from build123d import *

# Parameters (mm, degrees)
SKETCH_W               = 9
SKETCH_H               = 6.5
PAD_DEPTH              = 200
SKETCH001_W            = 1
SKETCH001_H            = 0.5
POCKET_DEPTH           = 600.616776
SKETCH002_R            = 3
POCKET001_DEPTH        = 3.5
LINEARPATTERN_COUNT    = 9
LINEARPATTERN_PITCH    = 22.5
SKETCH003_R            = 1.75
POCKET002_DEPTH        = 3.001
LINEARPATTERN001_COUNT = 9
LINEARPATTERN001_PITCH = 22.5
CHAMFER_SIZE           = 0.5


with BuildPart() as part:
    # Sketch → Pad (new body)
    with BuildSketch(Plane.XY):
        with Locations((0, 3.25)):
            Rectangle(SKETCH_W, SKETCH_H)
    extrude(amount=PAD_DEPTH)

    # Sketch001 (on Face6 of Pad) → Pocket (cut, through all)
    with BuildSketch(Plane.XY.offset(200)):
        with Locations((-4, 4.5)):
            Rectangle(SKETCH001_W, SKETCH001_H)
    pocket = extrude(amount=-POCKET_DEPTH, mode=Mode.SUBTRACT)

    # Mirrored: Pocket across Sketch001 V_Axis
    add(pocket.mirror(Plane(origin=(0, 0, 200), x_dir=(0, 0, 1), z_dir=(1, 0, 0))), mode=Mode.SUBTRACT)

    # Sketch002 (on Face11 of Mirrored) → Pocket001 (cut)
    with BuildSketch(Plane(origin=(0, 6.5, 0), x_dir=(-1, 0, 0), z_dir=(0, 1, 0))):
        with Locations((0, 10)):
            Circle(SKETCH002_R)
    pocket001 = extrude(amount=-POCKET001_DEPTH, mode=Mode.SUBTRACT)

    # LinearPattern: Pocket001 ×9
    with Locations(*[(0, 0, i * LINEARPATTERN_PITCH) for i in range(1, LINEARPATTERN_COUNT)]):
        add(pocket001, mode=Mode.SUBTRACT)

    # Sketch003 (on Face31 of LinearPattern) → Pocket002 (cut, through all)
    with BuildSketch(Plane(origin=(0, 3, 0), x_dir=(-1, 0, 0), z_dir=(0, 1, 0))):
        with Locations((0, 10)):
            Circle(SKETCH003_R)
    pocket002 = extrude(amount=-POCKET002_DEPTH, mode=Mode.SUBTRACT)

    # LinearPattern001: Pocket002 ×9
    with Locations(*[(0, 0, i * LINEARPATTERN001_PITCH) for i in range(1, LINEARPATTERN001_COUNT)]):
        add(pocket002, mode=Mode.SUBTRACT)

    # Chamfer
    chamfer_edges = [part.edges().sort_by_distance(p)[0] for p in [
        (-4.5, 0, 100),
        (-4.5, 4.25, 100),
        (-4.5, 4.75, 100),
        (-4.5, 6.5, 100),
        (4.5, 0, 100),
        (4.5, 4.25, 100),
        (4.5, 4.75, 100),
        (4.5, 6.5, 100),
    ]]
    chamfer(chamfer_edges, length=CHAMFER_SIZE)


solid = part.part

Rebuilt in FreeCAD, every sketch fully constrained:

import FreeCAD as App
import Part
import Sketcher

V = App.Vector
Q = App.Units.Quantity


def edges_at(feature, points):
    """Names of the edges that pass closest to the given points."""
    edges = feature.Shape.Edges
    near = lambda p: min(range(len(edges)), key=lambda i: edges[i].distToShape(Part.Vertex(*p))[0])
    return sorted({f"Edge{near(p) + 1}" for p in points})


def add_polygon(sketch, points):
    """Adds a closed chain of lines whose ends are joined by coincident constraints."""
    first, n = sketch.GeometryCount, len(points)
    for a, b in zip(points, points[1:] + points[:1]):
        sketch.addGeometry(Part.LineSegment(App.Vector(*a, 0), App.Vector(*b, 0)), False)
    for i in range(n):
        sketch.addConstraint(Sketcher.Constraint("Coincident", first + i, 2, first + (i + 1) % n, 1))

doc = App.newDocument("Part")
body = doc.addObject("PartDesign::Body", "Body")

# Sketch on XY plane
sketch1 = body.newObject("Sketcher::SketchObject", "Sketch")
sketch1.AttachmentSupport = (doc.getObject("XY_Plane"), [""])
sketch1.MapMode = "FlatFace"
add_polygon(sketch1, [(-4, 6), (-4, 0), (4, 0), (4, 6)])  # lines 0-3
sketch1.addConstraint([
    Sketcher.Constraint("Vertical", 0),
    Sketcher.Constraint("Horizontal", 1),
    Sketcher.Constraint("Vertical", 2),
    Sketcher.Constraint("Horizontal", 3),
    Sketcher.Constraint("Symmetric", 0, 2, 1, 2, -1, 1),
    Sketcher.Constraint("DistanceX", 1, 1, 1, 2, Q("9 mm")),
    Sketcher.Constraint("DistanceY", 0, 2, 0, 1, Q("6.5 mm")),
])
pad1 = body.newObject("PartDesign::Pad", "Pad")
pad1.Profile = sketch1
pad1.Length = 200

# Sketch on XY plane
sketch2 = body.newObject("Sketcher::SketchObject", "Sketch001")
sketch2.AttachmentSupport = (doc.getObject("XY_Plane"), [""])
sketch2.MapMode = "FlatFace"
sketch2.AttachmentOffset = App.Placement(V(0, 0, 200), App.Rotation())
add_polygon(sketch2, [(-4.5, 4.8), (-4.5, 4.2), (-3.5, 4.2), (-3.5, 4.8)])  # lines 0-3
sketch2.addConstraint([
    Sketcher.Constraint("Vertical", 0),
    Sketcher.Constraint("Horizontal", 1),
    Sketcher.Constraint("Vertical", 2),
    Sketcher.Constraint("Horizontal", 3),
    Sketcher.Constraint("DistanceX", 1, 1, 1, 2, Q("1 mm")),
    Sketcher.Constraint("DistanceY", 0, 2, 0, 1, Q("0.5 mm")),
    Sketcher.Constraint("DistanceX", 0, 2, -1, 1, Q("4.5 mm")),
    Sketcher.Constraint("DistanceY", -1, 1, 0, 2, Q("4.25 mm")),
])
pocket1 = body.newObject("PartDesign::Pocket", "Pocket")
pocket1.Profile = sketch2
pocket1.Type = "ThroughAll"
doc.recompute()

mirrored = body.newObject("PartDesign::Mirrored", "Mirrored")
mirrored.Originals = [pocket1]
mirrored.MirrorPlane = (doc.getObject("YZ_Plane"), [""])
body.Tip = mirrored

# Sketch on XZ plane
sketch3 = body.newObject("Sketcher::SketchObject", "Sketch002")
sketch3.AttachmentSupport = (doc.getObject("XZ_Plane"), [""])
sketch3.MapMode = "FlatFace"
sketch3.AttachmentOffset = App.Placement(V(0, 0, -6.5), App.Rotation())
sketch3.addGeometry(Part.Circle(V(0, 10, 0), V(0, 0, 1), 3), False)
sketch3.addConstraint([
    Sketcher.Constraint("PointOnObject", 0, 3, -2),
    Sketcher.Constraint("Diameter", 0, Q("6 mm")),
    Sketcher.Constraint("DistanceY", -1, 1, 0, 3, Q("10 mm")),
])
pocket2 = body.newObject("PartDesign::Pocket", "Pocket001")
pocket2.Profile = sketch3
pocket2.Length = 3.5
pocket2.Reversed = True
doc.recompute()

linearpattern = body.newObject("PartDesign::LinearPattern", "LinearPattern")
linearpattern.Originals = [pocket2]
linearpattern.Direction = (doc.getObject("Z_Axis"), [""])
linearpattern.Mode = "offset"
linearpattern.Offset = 22.5
linearpattern.Occurrences = 9
body.Tip = linearpattern

# Sketch on XZ plane
sketch4 = body.newObject("Sketcher::SketchObject", "Sketch003")
sketch4.AttachmentSupport = (doc.getObject("XZ_Plane"), [""])
sketch4.MapMode = "FlatFace"
sketch4.AttachmentOffset = App.Placement(V(0, 0, -3), App.Rotation())
sketch4.addGeometry(Part.Circle(V(0, 10, 0), V(0, 0, 1), 1.8), False)
sketch4.addConstraint([
    Sketcher.Constraint("PointOnObject", 0, 3, -2),
    Sketcher.Constraint("Diameter", 0, Q("3.5 mm")),
    Sketcher.Constraint("DistanceY", -1, 1, 0, 3, Q("10 mm")),
])
pocket3 = body.newObject("PartDesign::Pocket", "Pocket002")
pocket3.Profile = sketch4
pocket3.Type = "ThroughAll"
pocket3.Reversed = True
doc.recompute()

linearpattern2 = body.newObject("PartDesign::LinearPattern", "LinearPattern001")
linearpattern2.Originals = [pocket3]
linearpattern2.Direction = (doc.getObject("Z_Axis"), [""])
linearpattern2.Mode = "offset"
linearpattern2.Offset = 22.5
linearpattern2.Occurrences = 9
body.Tip = linearpattern2
doc.recompute()

chamfer = body.newObject("PartDesign::Chamfer", "Chamfer")
chamfer.Base = (linearpattern2, edges_at(linearpattern2, [
    (-4.5, 0, 100),
    (-4.5, 4.25, 100),
    (-4.5, 4.75, 100),
    (-4.5, 6.5, 100),
    (4.5, 0, 100),
    (4.5, 4.25, 100),
    (4.5, 4.75, 100),
    (4.5, 6.5, 100),
]))
chamfer.Size = 0.5

doc.recompute()
